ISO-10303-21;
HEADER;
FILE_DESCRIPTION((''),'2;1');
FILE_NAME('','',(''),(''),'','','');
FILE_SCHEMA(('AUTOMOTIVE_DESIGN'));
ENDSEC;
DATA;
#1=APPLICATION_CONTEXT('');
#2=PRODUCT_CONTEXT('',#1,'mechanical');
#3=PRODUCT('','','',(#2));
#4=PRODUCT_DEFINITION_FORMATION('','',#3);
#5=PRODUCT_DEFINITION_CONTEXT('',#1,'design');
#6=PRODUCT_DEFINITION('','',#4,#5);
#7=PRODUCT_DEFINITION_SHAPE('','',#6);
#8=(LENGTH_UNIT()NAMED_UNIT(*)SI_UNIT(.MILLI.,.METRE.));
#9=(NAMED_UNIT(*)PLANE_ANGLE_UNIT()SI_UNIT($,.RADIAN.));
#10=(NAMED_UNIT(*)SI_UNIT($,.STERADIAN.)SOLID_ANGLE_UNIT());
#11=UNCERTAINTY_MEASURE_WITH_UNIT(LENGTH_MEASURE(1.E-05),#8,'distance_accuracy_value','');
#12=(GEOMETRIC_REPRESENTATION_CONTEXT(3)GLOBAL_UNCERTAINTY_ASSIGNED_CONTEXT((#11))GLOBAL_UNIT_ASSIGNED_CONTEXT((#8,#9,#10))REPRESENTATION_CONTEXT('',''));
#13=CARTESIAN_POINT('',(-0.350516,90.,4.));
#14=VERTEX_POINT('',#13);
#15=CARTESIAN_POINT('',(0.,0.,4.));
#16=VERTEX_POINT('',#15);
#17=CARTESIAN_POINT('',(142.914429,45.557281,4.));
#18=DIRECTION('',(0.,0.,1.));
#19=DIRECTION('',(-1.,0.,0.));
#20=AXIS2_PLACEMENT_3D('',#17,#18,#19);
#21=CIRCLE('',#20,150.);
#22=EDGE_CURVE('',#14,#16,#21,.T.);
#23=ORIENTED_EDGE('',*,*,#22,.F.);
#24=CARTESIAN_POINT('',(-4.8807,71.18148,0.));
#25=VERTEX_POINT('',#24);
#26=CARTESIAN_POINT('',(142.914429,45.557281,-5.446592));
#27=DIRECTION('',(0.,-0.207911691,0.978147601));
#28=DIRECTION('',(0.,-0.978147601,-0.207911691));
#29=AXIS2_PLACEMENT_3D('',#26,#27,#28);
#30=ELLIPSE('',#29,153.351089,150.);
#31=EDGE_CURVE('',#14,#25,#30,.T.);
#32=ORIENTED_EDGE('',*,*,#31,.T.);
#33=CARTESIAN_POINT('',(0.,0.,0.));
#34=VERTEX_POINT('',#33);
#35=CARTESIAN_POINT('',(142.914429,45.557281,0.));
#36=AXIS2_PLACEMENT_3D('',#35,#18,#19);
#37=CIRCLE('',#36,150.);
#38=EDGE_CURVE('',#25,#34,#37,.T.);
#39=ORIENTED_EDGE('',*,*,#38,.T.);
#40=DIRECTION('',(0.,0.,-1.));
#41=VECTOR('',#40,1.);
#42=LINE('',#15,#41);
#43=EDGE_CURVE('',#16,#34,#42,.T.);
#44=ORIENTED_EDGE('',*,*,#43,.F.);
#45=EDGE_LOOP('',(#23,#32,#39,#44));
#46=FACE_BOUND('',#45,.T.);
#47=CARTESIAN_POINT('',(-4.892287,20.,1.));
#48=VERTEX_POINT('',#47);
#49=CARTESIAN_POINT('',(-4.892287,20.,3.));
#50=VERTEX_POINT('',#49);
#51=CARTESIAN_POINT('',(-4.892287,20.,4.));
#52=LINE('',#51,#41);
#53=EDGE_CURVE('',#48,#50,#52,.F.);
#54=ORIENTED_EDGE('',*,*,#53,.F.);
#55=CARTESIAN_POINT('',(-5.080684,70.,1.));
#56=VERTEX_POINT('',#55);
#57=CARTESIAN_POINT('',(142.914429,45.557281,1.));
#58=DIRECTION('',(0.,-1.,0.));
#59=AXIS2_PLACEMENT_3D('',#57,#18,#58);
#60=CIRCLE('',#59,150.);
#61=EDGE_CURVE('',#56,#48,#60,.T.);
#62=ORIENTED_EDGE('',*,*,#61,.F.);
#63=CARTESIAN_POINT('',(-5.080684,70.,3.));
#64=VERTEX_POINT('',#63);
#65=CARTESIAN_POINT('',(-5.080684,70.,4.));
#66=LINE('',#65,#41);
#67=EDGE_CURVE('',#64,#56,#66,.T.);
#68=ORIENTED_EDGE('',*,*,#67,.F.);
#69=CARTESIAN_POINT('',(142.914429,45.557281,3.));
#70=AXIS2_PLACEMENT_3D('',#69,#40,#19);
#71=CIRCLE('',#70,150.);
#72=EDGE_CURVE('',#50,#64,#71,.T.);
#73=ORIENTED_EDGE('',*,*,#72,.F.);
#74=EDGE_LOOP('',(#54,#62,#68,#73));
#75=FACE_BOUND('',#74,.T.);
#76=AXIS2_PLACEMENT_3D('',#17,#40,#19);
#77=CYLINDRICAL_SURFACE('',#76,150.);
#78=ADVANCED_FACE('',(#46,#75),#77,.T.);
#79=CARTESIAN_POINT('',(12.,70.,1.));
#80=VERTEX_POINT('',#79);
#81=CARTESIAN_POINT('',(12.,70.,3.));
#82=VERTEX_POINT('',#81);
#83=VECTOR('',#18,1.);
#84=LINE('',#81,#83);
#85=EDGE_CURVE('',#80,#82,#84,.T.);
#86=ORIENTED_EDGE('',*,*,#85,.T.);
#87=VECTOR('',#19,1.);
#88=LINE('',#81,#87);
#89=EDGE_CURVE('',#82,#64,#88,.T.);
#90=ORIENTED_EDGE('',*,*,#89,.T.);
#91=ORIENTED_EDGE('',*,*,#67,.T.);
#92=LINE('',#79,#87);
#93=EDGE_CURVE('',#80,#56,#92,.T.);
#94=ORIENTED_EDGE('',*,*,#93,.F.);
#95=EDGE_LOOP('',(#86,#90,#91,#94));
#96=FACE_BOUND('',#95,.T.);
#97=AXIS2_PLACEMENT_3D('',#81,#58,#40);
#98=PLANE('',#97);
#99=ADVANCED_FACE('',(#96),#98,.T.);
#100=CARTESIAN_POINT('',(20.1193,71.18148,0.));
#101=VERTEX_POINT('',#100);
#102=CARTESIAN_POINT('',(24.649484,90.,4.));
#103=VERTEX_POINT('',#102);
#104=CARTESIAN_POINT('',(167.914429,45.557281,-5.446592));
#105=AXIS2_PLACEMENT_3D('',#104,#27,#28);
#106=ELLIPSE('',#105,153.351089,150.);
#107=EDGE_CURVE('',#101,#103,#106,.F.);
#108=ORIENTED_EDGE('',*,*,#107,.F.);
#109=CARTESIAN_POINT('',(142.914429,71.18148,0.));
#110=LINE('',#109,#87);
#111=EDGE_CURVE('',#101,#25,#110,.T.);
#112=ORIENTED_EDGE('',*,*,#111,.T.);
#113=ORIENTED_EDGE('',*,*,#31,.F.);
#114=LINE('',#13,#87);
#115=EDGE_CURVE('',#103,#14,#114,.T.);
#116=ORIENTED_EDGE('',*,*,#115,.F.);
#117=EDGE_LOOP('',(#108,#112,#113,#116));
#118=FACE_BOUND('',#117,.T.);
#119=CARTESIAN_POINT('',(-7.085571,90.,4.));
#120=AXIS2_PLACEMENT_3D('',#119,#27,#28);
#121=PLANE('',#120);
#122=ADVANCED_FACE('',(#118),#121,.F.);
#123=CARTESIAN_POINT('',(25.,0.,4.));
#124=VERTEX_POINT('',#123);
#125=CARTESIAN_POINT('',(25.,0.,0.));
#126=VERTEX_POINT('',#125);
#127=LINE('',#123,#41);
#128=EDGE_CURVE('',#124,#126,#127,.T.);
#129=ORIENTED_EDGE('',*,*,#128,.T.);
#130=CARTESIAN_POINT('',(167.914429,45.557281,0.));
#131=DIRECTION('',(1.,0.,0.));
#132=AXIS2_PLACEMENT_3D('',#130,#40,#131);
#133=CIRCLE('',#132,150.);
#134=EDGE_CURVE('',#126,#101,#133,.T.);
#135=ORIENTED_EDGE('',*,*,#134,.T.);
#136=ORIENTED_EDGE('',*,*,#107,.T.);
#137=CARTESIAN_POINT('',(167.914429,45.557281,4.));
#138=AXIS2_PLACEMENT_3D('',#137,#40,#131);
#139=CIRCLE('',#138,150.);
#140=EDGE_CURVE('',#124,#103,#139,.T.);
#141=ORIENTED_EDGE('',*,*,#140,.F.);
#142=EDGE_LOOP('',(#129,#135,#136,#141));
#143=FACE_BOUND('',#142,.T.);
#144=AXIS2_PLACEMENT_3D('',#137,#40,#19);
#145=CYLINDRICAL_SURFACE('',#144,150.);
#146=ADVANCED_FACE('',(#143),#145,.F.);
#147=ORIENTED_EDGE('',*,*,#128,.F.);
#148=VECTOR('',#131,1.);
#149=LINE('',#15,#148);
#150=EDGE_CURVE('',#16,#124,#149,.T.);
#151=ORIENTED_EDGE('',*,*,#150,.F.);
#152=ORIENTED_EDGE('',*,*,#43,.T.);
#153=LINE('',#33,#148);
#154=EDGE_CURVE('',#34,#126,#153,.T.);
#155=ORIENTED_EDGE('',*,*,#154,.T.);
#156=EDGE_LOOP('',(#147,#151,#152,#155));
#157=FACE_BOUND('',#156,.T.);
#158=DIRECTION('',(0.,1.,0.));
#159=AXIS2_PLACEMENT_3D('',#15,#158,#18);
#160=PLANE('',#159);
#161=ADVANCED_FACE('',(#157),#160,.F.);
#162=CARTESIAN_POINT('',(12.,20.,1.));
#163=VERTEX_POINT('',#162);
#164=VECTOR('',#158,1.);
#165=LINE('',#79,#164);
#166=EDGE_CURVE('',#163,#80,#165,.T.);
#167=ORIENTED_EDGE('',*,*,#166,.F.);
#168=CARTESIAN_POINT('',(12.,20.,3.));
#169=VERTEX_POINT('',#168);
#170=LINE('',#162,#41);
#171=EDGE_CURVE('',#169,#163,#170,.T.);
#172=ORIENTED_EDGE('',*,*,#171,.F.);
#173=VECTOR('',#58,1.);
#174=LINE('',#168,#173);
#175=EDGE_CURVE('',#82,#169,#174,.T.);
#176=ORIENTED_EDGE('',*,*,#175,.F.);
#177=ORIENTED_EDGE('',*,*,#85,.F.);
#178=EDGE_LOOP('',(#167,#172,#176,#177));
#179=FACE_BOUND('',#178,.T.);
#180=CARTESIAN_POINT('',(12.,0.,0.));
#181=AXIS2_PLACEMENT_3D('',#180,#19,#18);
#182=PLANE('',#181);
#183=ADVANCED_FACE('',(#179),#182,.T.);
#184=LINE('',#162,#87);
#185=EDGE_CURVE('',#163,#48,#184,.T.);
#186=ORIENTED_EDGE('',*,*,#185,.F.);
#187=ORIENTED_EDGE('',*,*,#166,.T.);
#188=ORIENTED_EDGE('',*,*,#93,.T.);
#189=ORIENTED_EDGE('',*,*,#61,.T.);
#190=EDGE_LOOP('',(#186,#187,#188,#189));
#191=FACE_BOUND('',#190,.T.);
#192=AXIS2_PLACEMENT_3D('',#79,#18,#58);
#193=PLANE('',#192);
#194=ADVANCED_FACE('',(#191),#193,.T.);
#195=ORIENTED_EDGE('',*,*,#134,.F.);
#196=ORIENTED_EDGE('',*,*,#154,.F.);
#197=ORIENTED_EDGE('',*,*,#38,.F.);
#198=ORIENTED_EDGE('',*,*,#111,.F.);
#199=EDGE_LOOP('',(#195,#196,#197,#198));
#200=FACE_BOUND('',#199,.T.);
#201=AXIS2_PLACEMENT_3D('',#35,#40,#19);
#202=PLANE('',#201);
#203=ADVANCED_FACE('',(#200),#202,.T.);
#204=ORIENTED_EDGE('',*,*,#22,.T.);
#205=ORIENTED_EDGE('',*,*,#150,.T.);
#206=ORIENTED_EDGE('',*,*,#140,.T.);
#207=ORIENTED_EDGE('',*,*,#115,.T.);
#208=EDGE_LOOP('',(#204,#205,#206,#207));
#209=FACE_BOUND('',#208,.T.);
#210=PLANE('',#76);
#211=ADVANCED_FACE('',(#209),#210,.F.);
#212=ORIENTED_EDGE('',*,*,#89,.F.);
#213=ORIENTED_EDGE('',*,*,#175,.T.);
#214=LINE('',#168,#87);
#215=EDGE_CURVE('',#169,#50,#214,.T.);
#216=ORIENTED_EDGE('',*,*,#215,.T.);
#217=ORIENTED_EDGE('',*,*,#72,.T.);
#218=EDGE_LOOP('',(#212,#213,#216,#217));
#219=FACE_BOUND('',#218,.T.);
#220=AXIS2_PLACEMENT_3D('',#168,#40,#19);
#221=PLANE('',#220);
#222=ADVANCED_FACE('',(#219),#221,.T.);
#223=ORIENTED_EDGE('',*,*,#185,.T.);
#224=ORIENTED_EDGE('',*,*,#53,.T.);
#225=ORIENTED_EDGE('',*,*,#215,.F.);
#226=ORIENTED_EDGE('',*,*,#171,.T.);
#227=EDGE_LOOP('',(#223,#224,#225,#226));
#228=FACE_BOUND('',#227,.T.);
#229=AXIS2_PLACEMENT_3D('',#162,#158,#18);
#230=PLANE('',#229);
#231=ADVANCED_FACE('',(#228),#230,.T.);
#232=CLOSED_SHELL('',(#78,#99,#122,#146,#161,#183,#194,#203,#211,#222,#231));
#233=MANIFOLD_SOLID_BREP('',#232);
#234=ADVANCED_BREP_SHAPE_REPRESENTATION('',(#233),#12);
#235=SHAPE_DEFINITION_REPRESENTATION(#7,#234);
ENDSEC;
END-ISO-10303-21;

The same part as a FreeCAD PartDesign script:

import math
import FreeCAD as App
import Part
import Sketcher
Q = App.Units.Quantity

doc = App.newDocument("Part")
params = doc.addObject("Spreadsheet::Sheet", "Params")
for row, (alias, value) in enumerate([
    ("sketch1_radius", "150 mm"),
    ("sketch1_width", "25 mm"),
    ("pad1_length", "4 mm"),
    ("sketch2_height", "4 mm"),
    ("sketch3_width", "50 mm"),
    ("sketch3_height", "2 mm"),
    ("pocket2_length", "12 mm"),
    ("pocket2_length2", "8.085571 mm"),
], start=1):
    params.set(f"A{row}", alias)
    params.set(f"B{row}", "=" + value)
    params.setAlias(f"B{row}", alias)

body = doc.addObject("PartDesign::Body", "Body")

# Sketch on XY plane
sketch1 = doc.addObject("Sketcher::SketchObject", "Sketch")
body.addObject(sketch1)
sketch1.AttachmentSupport = (doc.XY_Plane, [""])
sketch1.MapMode = "FlatFace"
sketch1.addGeometry(Part.LineSegment(App.Vector(25, 90, 0), App.Vector(0, 90, 0)), False)
sketch1.addGeometry(Part.ArcOfCircle(Part.Circle(App.Vector(143, 46, 0), App.Vector(0, 0, 1), 150), math.radians(163), math.radians(198)), False)
sketch1.addGeometry(Part.LineSegment(App.Vector(0, 0, 0), App.Vector(25, 0, 0)), False)
sketch1.addGeometry(Part.ArcOfCircle(Part.Circle(App.Vector(168, 46, 0), App.Vector(0, 0, 1), 150), math.radians(163), math.radians(198)), False)
sketch1.addConstraint(Sketcher.Constraint("Coincident", 0, 2, 1, 1))
sketch1.addConstraint(Sketcher.Constraint("Coincident", 1, 2, 2, 1))
sketch1.addConstraint(Sketcher.Constraint("Coincident", 2, 2, 3, 2))
sketch1.addConstraint(Sketcher.Constraint("Coincident", 3, 1, 0, 1))
sketch1.addConstraint(Sketcher.Constraint("Horizontal", 0))
sketch1.addConstraint(Sketcher.Constraint("Horizontal", 2))
sketch1.addConstraint(Sketcher.Constraint("Coincident", 1, 2, -1, 1))
sketch1.addConstraint(Sketcher.Constraint("Equal", 1, 3))
sketch1.addConstraint(Sketcher.Constraint("Horizontal", 1, 3, 3, 3))
sketch1.addConstraint(Sketcher.Constraint("Radius", 1, Q("150 mm")))
sketch1.addConstraint(Sketcher.Constraint("DistanceX", 0, 2, 0, 1, Q("25 mm")))
sketch1.addConstraint(Sketcher.Constraint("DistanceY", -1, 1, 0, 2, Q("90 mm")))
sketch1.addConstraint(Sketcher.Constraint("DistanceX", -1, 1, 1, 3, Q("142.91443 mm")))
sketch1.setExpression("Constraints[9]", "Params.sketch1_radius")
sketch1.setExpression("Constraints[10]", "Params.sketch1_width")
pad1 = doc.addObject("PartDesign::Pad", "Pad")
body.addObject(pad1)
pad1.Profile = sketch1
pad1.setExpression("Length", "Params.pad1_length")

# Sketch on YZ plane
sketch2 = doc.addObject("Sketcher::SketchObject", "Sketch001")
body.addObject(sketch2)
sketch2.AttachmentSupport = (doc.YZ_Plane, [""])
sketch2.MapMode = "FlatFace"
sketch2.addGeometry(Part.LineSegment(App.Vector(90, 4, 0), App.Vector(71.2, 0, 0)), False)
sketch2.addGeometry(Part.LineSegment(App.Vector(71.2, 0, 0), App.Vector(90, 0, 0)), False)
sketch2.addGeometry(Part.LineSegment(App.Vector(90, 0, 0), App.Vector(90, 4, 0)), False)
sketch2.addConstraint(Sketcher.Constraint("Coincident", 0, 2, 1, 1))
sketch2.addConstraint(Sketcher.Constraint("Coincident", 1, 2, 2, 1))
sketch2.addConstraint(Sketcher.Constraint("Coincident", 2, 2, 0, 1))
sketch2.addConstraint(Sketcher.Constraint("Horizontal", 1))
sketch2.addConstraint(Sketcher.Constraint("Vertical", 2))
sketch2.addConstraint(Sketcher.Constraint("PointOnObject", 0, 2, -1))
sketch2.addConstraint(Sketcher.Constraint("DistanceY", 2, 1, 2, 2, Q("4 mm")))
sketch2.addConstraint(Sketcher.Constraint("Angle", 0, Q("-168 deg")))
sketch2.addConstraint(Sketcher.Constraint("DistanceX", -1, 1, 1, 2, Q("90 mm")))
sketch2.setExpression("Constraints[6]", "Params.sketch2_height")
pocket1 = doc.addObject("PartDesign::Pocket", "Pocket")
body.addObject(pocket1)
pocket1.Profile = sketch2
pocket1.Type = "ThroughAll"
pocket1.Midplane = True

# Sketch on YZ plane
sketch3 = doc.addObject("Sketcher::SketchObject", "Sketch002")
body.addObject(sketch3)
sketch3.AttachmentSupport = (doc.YZ_Plane, [""])
sketch3.MapMode = "FlatFace"
sketch3.addGeometry(Part.LineSegment(App.Vector(70, 3, 0), App.Vector(20, 3, 0)), False)
sketch3.addGeometry(Part.LineSegment(App.Vector(20, 3, 0), App.Vector(20, 1, 0)), False)
sketch3.addGeometry(Part.LineSegment(App.Vector(20, 1, 0), App.Vector(70, 1, 0)), False)
sketch3.addGeometry(Part.LineSegment(App.Vector(70, 1, 0), App.Vector(70, 3, 0)), False)
sketch3.addConstraint(Sketcher.Constraint("Coincident", 0, 2, 1, 1))
sketch3.addConstraint(Sketcher.Constraint("Coincident", 1, 2, 2, 1))
sketch3.addConstraint(Sketcher.Constraint("Coincident", 2, 2, 3, 1))
sketch3.addConstraint(Sketcher.Constraint("Coincident", 3, 2, 0, 1))
sketch3.addConstraint(Sketcher.Constraint("Horizontal", 0))
sketch3.addConstraint(Sketcher.Constraint("Vertical", 1))
sketch3.addConstraint(Sketcher.Constraint("Horizontal", 2))
sketch3.addConstraint(Sketcher.Constraint("Vertical", 3))
sketch3.addConstraint(Sketcher.Constraint("DistanceX", 0, 2, 0, 1, Q("50 mm")))
sketch3.addConstraint(Sketcher.Constraint("DistanceY", 1, 2, 1, 1, Q("2 mm")))
sketch3.addConstraint(Sketcher.Constraint("DistanceX", -1, 1, 0, 2, Q("20 mm")))
sketch3.addConstraint(Sketcher.Constraint("DistanceY", -1, 1, 0, 2, Q("3 mm")))
sketch3.setExpression("Constraints[8]", "Params.sketch3_width")
sketch3.setExpression("Constraints[9]", "Params.sketch3_height")
pocket2 = doc.addObject("PartDesign::Pocket", "Pocket001")
body.addObject(pocket2)
pocket2.Profile = sketch3
pocket2.Type = "TwoLengths"
pocket2.setExpression("Length", "Params.pocket2_length")
pocket2.setExpression("Length2", "Params.pocket2_length2")
pocket2.Reversed = True

doc.recompute()
